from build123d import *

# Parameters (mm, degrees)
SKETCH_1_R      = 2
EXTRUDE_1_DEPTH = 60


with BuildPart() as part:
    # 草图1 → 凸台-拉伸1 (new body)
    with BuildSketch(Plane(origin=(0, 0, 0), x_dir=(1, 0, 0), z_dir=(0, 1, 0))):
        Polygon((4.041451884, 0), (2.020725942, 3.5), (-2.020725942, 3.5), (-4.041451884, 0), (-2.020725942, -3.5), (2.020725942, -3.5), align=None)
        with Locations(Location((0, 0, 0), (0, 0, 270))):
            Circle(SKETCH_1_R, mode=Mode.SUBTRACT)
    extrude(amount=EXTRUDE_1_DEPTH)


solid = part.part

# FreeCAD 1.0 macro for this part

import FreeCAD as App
import Part
import Sketcher

V = App.Vector
Q = App.Units.Quantity


def add_polygon(sketch, points):
    """Adds a closed chain of lines whose ends are joined by coincident constraints."""
    first, n = sketch.GeometryCount, len(points)
    for a, b in zip(points, points[1:] + points[:1]):
        sketch.addGeometry(Part.LineSegment(App.Vector(*a, 0), App.Vector(*b, 0)), False)
    for i in range(n):
        sketch.addConstraint(Sketcher.Constraint("Coincident", first + i, 2, first + (i + 1) % n, 1))

doc = App.newDocument("Part")
body = doc.addObject("PartDesign::Body", "Body")

# Sketch on XZ plane
sketch1 = doc.addObject("Sketcher::SketchObject", "Sketch")
body.addObject(sketch1)
sketch1.AttachmentSupport = (doc.XZ_Plane, [""])
sketch1.MapMode = "FlatFace"
add_polygon(sketch1, [(4, 0), (2, -3.5), (-2, -3.5), (-4, 0), (-2, 3.5), (2, 3.5)])  # lines 0-5
sketch1.addGeometry(Part.Circle(V(0, 0, 0), V(0, 0, 1), 2), False)  # 6
sketch1.addConstraint([
    Sketcher.Constraint("Horizontal", 1),
    Sketcher.Constraint("Horizontal", 4),
    Sketcher.Constraint("Coincident", 6, 3, -1, 1),
    Sketcher.Constraint("Symmetric", 0, 2, 3, 2, -1, 1),
    Sketcher.Constraint("Symmetric", 2, 2, 5, 2, -1, 1),
    Sketcher.Constraint("PointOnObject", 2, 2, -1),
    Sketcher.Constraint("Parallel", 2, 5),
    Sketcher.Constraint("Vertical", 1, 2, 3, 2),
    Sketcher.Constraint("Diameter", 6, Q("4 mm")),
    Sketcher.Constraint("Angle", 0, Q("-120 deg")),
    Sketcher.Constraint("DistanceY", 1, 2, 3, 2, Q("7 mm")),
    Sketcher.Constraint("DistanceX", 1, 2, 1, 1, Q("4.041452 mm")),
])
pad1 = doc.addObject("PartDesign::Pad", "Pad")
body.addObject(pad1)
pad1.Profile = sketch1
pad1.Length = 60
pad1.Reversed = True

doc.recompute()
